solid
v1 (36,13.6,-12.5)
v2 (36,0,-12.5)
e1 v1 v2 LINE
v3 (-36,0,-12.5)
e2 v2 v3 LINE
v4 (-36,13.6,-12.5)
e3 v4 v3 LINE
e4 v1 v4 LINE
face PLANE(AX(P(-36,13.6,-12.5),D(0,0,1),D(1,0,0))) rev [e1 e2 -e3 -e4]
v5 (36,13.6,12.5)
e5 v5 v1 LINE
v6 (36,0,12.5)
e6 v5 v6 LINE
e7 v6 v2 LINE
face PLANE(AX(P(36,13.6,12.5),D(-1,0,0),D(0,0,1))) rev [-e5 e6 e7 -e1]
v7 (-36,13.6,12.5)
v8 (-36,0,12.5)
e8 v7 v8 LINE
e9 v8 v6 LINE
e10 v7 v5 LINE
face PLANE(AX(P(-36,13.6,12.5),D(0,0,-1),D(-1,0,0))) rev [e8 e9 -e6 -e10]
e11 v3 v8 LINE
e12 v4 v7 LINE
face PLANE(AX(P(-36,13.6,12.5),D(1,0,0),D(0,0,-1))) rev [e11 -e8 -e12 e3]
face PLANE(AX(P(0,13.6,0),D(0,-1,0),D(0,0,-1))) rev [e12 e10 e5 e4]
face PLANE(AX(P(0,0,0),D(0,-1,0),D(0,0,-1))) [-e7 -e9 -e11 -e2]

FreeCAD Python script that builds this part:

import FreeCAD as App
import Part
import Sketcher
from FreeCAD import Vector
Q = App.Units.Quantity


def add_polygon(sketch, points):
    """Adds a closed chain of lines whose ends are joined by coincident constraints."""
    first, n = sketch.GeometryCount, len(points)
    for a, b in zip(points, points[1:] + points[:1]):
        sketch.addGeometry(Part.LineSegment(App.Vector(*a, 0), App.Vector(*b, 0)), False)
    for i in range(n):
        sketch.addConstraint(Sketcher.Constraint("Coincident", first + i, 2, first + (i + 1) % n, 1))

doc = App.newDocument("Part")
body = doc.addObject("PartDesign::Body", "Body")

sketch1 = body.newObject("Sketcher::SketchObject", "Sketch")
sketch1.AttachmentSupport = (doc.getObject("XZ_Plane"), [""])
sketch1.MapMode = "FlatFace"
add_polygon(sketch1, [(-36, -12.5), (-36, 12.5), (36, 12.5), (36, -12.5)])
sketch1.addConstraint([
    Sketcher.Constraint("Vertical", 0),
    Sketcher.Constraint("Horizontal", 1),
    Sketcher.Constraint("Vertical", 2),
    Sketcher.Constraint("Horizontal", 3),
    Sketcher.Constraint("Symmetric", 0, 2, 2, 2, -1, 1),
    Sketcher.Constraint("DistanceX", 1, 1, 1, 2, Q("72 mm")),
    Sketcher.Constraint("DistanceY", 0, 1, 0, 2, Q("25 mm")),
])
pad1 = body.newObject("PartDesign::Pad", "Pad")
pad1.Profile = sketch1
pad1.Length = 13.6
pad1.Reversed = True

doc.recompute()
